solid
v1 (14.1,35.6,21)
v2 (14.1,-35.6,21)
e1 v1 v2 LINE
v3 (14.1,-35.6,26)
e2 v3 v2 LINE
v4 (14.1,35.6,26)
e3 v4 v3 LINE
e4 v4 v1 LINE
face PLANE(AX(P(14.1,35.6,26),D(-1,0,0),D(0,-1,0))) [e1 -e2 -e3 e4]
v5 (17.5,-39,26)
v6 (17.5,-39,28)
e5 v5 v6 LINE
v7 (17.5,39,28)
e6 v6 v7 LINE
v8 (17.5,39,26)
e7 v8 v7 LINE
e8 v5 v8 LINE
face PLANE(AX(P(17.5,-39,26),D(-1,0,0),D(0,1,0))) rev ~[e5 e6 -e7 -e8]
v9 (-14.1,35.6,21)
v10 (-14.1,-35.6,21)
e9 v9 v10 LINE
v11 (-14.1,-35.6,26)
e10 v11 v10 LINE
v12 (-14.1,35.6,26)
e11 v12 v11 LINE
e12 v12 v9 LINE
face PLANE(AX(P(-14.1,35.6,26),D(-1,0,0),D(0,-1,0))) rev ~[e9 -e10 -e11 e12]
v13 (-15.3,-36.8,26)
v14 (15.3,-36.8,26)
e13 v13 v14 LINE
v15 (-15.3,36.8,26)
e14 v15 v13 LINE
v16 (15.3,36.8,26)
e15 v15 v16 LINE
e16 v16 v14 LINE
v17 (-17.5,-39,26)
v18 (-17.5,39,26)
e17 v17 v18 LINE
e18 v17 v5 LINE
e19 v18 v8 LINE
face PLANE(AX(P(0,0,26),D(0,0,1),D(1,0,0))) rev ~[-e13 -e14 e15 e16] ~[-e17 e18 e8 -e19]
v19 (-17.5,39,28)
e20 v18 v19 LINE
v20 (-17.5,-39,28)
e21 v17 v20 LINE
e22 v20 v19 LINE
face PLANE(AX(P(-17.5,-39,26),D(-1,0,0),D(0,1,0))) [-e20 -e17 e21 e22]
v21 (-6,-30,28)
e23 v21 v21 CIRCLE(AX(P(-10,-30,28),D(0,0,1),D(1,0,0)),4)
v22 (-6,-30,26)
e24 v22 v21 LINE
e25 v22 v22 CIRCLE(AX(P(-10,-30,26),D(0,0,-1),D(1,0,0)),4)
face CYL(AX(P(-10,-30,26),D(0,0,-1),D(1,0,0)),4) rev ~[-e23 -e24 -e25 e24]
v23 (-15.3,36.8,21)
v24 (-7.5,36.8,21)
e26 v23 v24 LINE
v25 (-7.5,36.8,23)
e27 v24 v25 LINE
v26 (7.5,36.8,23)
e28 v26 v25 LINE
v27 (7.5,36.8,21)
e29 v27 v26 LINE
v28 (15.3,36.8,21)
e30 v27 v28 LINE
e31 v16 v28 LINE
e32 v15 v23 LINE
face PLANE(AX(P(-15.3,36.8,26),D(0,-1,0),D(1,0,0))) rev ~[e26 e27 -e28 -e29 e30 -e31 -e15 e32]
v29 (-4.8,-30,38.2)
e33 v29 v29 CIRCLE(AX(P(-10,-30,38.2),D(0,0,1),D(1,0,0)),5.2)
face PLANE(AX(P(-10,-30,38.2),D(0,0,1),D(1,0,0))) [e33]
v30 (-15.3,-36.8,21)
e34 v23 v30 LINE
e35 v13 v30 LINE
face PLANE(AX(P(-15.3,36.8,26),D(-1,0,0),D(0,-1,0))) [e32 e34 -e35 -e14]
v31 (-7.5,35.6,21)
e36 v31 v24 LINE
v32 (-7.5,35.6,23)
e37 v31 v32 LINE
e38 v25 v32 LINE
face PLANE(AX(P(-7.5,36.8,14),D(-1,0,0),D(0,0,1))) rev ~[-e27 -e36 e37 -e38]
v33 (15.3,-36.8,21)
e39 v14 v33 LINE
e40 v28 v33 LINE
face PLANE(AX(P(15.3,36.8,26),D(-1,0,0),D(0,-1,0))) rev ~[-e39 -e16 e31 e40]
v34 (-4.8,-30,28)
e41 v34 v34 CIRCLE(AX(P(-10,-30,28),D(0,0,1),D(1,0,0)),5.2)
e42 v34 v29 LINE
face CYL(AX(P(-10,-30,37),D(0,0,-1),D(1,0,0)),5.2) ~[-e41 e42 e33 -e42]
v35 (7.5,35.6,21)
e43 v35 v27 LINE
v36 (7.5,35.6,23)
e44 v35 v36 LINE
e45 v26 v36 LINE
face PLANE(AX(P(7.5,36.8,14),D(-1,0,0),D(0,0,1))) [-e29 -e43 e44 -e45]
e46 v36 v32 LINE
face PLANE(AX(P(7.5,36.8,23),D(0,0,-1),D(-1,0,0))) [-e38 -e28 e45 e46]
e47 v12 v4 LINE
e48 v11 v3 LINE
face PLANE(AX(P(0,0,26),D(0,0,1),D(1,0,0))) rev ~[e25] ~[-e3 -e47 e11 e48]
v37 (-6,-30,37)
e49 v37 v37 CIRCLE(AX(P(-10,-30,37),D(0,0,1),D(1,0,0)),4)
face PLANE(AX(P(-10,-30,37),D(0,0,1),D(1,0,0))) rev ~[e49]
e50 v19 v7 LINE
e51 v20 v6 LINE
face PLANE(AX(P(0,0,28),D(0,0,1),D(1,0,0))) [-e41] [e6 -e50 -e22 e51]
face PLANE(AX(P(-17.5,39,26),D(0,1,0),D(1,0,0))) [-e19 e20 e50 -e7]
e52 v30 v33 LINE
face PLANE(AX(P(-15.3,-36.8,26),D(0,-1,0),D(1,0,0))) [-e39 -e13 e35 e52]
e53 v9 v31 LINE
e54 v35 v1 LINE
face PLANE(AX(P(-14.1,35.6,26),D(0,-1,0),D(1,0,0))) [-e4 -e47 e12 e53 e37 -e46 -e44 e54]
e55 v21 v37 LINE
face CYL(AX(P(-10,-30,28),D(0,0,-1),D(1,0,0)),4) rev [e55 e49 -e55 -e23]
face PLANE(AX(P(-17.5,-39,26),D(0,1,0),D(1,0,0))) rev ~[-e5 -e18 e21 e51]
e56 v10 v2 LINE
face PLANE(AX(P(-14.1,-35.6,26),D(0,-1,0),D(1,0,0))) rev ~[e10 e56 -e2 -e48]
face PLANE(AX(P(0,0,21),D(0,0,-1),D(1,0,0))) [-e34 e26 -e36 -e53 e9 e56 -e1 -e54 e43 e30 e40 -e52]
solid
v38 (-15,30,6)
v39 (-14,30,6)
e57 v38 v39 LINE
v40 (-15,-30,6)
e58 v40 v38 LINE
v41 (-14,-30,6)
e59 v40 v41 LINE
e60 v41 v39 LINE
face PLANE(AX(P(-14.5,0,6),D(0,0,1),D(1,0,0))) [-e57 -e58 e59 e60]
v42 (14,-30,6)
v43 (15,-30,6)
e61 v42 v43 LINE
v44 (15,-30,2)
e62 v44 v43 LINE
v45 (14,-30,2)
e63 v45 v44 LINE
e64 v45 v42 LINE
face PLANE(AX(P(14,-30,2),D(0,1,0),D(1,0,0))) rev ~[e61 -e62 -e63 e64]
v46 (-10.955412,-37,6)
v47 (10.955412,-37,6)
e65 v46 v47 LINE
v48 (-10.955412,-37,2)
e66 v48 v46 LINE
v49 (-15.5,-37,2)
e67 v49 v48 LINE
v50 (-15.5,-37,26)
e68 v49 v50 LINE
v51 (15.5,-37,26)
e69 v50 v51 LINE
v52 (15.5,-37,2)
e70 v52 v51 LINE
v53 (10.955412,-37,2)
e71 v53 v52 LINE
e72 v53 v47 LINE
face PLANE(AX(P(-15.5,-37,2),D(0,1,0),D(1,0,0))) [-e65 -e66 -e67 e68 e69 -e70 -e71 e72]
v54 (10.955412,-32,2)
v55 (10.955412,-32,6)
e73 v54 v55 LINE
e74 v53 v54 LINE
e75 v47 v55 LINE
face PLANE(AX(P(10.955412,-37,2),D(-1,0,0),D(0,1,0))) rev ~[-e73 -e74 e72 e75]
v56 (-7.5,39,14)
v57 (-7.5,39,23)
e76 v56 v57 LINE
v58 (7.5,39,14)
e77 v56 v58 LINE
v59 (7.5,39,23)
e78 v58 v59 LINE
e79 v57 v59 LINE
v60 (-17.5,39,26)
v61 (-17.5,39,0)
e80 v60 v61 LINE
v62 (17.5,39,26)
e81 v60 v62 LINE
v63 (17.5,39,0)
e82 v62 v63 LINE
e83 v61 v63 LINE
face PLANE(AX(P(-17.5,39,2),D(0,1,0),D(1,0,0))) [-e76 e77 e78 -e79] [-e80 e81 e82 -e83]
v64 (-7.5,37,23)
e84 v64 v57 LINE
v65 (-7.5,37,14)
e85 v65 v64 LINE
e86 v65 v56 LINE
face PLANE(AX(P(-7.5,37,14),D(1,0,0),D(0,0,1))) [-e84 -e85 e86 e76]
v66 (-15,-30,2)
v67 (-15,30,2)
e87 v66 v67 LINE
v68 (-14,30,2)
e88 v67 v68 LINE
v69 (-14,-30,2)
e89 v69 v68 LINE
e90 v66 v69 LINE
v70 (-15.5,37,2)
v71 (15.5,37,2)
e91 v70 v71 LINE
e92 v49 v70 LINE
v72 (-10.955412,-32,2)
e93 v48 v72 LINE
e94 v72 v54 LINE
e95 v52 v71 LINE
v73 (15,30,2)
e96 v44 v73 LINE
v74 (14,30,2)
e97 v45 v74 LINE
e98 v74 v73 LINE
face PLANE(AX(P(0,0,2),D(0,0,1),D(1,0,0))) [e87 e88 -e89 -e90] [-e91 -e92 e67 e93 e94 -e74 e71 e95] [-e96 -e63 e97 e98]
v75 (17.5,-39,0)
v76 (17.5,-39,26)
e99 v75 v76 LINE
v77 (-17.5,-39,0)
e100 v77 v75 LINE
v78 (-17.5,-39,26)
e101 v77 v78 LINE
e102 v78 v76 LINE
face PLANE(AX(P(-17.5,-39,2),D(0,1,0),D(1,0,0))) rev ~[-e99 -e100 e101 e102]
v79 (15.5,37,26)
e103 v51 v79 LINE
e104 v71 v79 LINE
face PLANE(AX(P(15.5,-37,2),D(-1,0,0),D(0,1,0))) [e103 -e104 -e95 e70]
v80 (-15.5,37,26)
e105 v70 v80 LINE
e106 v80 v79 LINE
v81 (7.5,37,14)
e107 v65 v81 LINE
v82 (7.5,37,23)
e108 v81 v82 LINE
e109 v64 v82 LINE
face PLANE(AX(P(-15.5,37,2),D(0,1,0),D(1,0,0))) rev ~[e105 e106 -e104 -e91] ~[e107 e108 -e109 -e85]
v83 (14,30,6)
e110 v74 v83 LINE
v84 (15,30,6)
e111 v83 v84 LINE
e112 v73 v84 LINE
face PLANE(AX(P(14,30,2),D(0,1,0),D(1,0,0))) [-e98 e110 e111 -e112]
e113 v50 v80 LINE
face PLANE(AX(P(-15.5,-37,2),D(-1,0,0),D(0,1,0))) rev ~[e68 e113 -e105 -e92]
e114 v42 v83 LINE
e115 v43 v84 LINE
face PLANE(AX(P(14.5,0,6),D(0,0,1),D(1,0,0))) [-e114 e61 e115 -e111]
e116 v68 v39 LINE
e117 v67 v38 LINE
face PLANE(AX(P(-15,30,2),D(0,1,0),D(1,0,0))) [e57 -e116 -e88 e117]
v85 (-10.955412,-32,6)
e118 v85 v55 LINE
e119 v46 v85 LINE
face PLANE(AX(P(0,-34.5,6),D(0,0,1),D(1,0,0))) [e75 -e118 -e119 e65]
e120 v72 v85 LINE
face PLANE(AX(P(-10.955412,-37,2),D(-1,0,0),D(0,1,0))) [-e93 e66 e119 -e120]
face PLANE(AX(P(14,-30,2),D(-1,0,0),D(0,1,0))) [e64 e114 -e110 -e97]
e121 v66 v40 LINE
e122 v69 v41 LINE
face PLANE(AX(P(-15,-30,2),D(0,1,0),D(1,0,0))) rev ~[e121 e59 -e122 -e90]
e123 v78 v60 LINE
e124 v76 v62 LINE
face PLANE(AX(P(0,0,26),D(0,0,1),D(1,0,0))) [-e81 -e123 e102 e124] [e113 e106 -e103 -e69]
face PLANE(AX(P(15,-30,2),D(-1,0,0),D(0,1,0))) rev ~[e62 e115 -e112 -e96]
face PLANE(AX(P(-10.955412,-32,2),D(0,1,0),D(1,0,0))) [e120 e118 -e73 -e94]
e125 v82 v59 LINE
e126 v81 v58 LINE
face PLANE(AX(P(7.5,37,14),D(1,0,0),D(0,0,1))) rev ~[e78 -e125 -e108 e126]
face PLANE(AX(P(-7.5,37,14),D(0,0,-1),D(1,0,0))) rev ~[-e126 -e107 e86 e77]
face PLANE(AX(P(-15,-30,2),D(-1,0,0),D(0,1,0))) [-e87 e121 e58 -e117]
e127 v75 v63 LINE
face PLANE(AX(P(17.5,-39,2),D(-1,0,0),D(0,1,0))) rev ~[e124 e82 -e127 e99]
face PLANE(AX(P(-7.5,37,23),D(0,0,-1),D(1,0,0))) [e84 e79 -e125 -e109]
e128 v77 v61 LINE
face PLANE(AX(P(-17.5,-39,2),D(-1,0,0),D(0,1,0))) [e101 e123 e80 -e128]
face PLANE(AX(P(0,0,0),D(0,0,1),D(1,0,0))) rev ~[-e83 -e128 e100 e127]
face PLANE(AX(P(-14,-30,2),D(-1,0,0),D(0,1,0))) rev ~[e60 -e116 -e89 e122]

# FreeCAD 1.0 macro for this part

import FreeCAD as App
import Part
import Sketcher
from FreeCAD import Vector
Q = App.Units.Quantity

doc = App.newDocument("Part")
body = doc.addObject("PartDesign::Body", "Body")

# Sketch on XY plane
sketch1 = body.newObject("Sketcher::SketchObject", "Sketch")
sketch1.AttachmentSupport = (doc.getObject("XY_Plane"), [""])
sketch1.MapMode = "FlatFace"
sketch1.addGeometry([
    Part.LineSegment(Vector(-18, 39, 0), Vector(-18, -39, 0)),
    Part.LineSegment(Vector(-18, -39, 0), Vector(18, -39, 0)),
    Part.LineSegment(Vector(18, -39, 0), Vector(18, 39, 0)),
    Part.LineSegment(Vector(18, 39, 0), Vector(-18, 39, 0)),
], False)
sketch1.addConstraint([
    Sketcher.Constraint("Coincident", 0, 2, 1, 1),
    Sketcher.Constraint("Coincident", 1, 2, 2, 1),
    Sketcher.Constraint("Coincident", 2, 2, 3, 1),
    Sketcher.Constraint("Coincident", 3, 2, 0, 1),
    Sketcher.Constraint("Vertical", 0),
    Sketcher.Constraint("Horizontal", 1),
    Sketcher.Constraint("Vertical", 2),
    Sketcher.Constraint("Horizontal", 3),
    Sketcher.Constraint("Symmetric", 0, 2, 2, 2, -1, 1),
    Sketcher.Constraint("DistanceX", 1, 1, 1, 2, Q("35 mm")),
    Sketcher.Constraint("DistanceY", 0, 2, 0, 1, Q("78 mm")),
])
pad1 = body.newObject("PartDesign::Pad", "Pad")
pad1.Profile = sketch1
pad1.Length = 2

# Sketch on XY plane
sketch2 = body.newObject("Sketcher::SketchObject", "Sketch001")
sketch2.AttachmentSupport = (doc.getObject("XY_Plane"), [""])
sketch2.MapMode = "FlatFace"
sketch2.AttachmentOffset = App.Placement(Vector(0, 0, 2), App.Rotation())
sketch2.addGeometry([
    Part.LineSegment(Vector(-18, 39, 0), Vector(-18, -39, 0)),  # 0
    Part.LineSegment(Vector(-18, -39, 0), Vector(18, -39, 0)),  # 1
    Part.LineSegment(Vector(18, -39, 0), Vector(18, 39, 0)),  # 2
    Part.LineSegment(Vector(18, 39, 0), Vector(-18, 39, 0)),  # 3
    Part.LineSegment(Vector(16, -37, 0), Vector(-16, -37, 0)),  # 4
    Part.LineSegment(Vector(-16, -37, 0), Vector(-16, 37, 0)),  # 5
    Part.LineSegment(Vector(-16, 37, 0), Vector(16, 37, 0)),  # 6
    Part.LineSegment(Vector(16, 37, 0), Vector(16, -37, 0)),  # 7
], False)
sketch2.addConstraint([
    Sketcher.Constraint("Coincident", 0, 2, 1, 1),
    Sketcher.Constraint("Coincident", 1, 2, 2, 1),
    Sketcher.Constraint("Coincident", 2, 2, 3, 1),
    Sketcher.Constraint("Coincident", 3, 2, 0, 1),
    Sketcher.Constraint("Coincident", 4, 2, 5, 1),
    Sketcher.Constraint("Coincident", 5, 2, 6, 1),
    Sketcher.Constraint("Coincident", 6, 2, 7, 1),
    Sketcher.Constraint("Coincident", 7, 2, 4, 1),
    Sketcher.Constraint("Vertical", 0),
    Sketcher.Constraint("Horizontal", 1),
    Sketcher.Constraint("Vertical", 2),
    Sketcher.Constraint("Horizontal", 3),
    Sketcher.Constraint("Horizontal", 4),
    Sketcher.Constraint("Vertical", 5),
    Sketcher.Constraint("Horizontal", 6),
    Sketcher.Constraint("Vertical", 7),
    Sketcher.Constraint("Symmetric", 0, 2, 2, 2, -1, 1),
    Sketcher.Constraint("Symmetric", 4, 2, 6, 2, -1, 1),
    Sketcher.Constraint("DistanceX", 1, 1, 1, 2, Q("35 mm")),
    Sketcher.Constraint("DistanceX", 4, 2, 4, 1, Q("31 mm")),
    Sketcher.Constraint("DistanceY", 0, 2, 0, 1, Q("78 mm")),
    Sketcher.Constraint("DistanceY", 5, 1, 5, 2, Q("74 mm")),
])
pad2 = body.newObject("PartDesign::Pad", "Pad001")
pad2.Profile = sketch2
pad2.Length = 24

# Sketch on XY plane
sketch3 = body.newObject("Sketcher::SketchObject", "Sketch002")
sketch3.AttachmentSupport = (doc.getObject("XY_Plane"), [""])
sketch3.MapMode = "FlatFace"
sketch3.AttachmentOffset = App.Placement(Vector(0, 0, 2), App.Rotation())
sketch3.addGeometry([
    Part.LineSegment(Vector(-15, 30, 0), Vector(-15, -30, 0)),  # 0
    Part.LineSegment(Vector(-15, -30, 0), Vector(-14, -30, 0)),  # 1
    Part.LineSegment(Vector(-14, -30, 0), Vector(-14, 30, 0)),  # 2
    Part.LineSegment(Vector(-14, 30, 0), Vector(-15, 30, 0)),  # 3
    Part.LineSegment(Vector(14, 30, 0), Vector(14, -30, 0)),  # 4
    Part.LineSegment(Vector(14, -30, 0), Vector(15, -30, 0)),  # 5
    Part.LineSegment(Vector(15, -30, 0), Vector(15, 30, 0)),  # 6
    Part.LineSegment(Vector(15, 30, 0), Vector(14, 30, 0)),  # 7
    Part.LineSegment(Vector(-11, -32, 0), Vector(-11, -37, 0)),  # 8
    Part.LineSegment(Vector(-11, -37, 0), Vector(11, -37, 0)),  # 9
    Part.LineSegment(Vector(11, -37, 0), Vector(11, -32, 0)),  # 10
    Part.LineSegment(Vector(11, -32, 0), Vector(-11, -32, 0)),  # 11
], False)
sketch3.addConstraint([
    Sketcher.Constraint("Coincident", 0, 2, 1, 1),
    Sketcher.Constraint("Coincident", 1, 2, 2, 1),
    Sketcher.Constraint("Coincident", 2, 2, 3, 1),
    Sketcher.Constraint("Coincident", 3, 2, 0, 1),
    Sketcher.Constraint("Coincident", 4, 2, 5, 1),
    Sketcher.Constraint("Coincident", 5, 2, 6, 1),
    Sketcher.Constraint("Coincident", 6, 2, 7, 1),
    Sketcher.Constraint("Coincident", 7, 2, 4, 1),
    Sketcher.Constraint("Coincident", 8, 2, 9, 1),
    Sketcher.Constraint("Coincident", 9, 2, 10, 1),
    Sketcher.Constraint("Coincident", 10, 2, 11, 1),
    Sketcher.Constraint("Coincident", 11, 2, 8, 1),
    Sketcher.Constraint("Vertical", 0),
    Sketcher.Constraint("Horizontal", 1),
    Sketcher.Constraint("Vertical", 2),
    Sketcher.Constraint("Horizontal", 3),
    Sketcher.Constraint("Vertical", 4),
    Sketcher.Constraint("Horizontal", 5),
    Sketcher.Constraint("Vertical", 6),
    Sketcher.Constraint("Horizontal", 7),
    Sketcher.Constraint("Vertical", 8),
    Sketcher.Constraint("Horizontal", 9),
    Sketcher.Constraint("Vertical", 10),
    Sketcher.Constraint("Horizontal", 11),
    Sketcher.Constraint("Symmetric", 2, 2, 4, 2, -1, 1),
    Sketcher.Constraint("Symmetric", 0, 2, 6, 2, -1, 1),
    Sketcher.Constraint("Horizontal", 1, 2, 4, 2),
    Sketcher.Constraint("DistanceX", 1, 1, 1, 2, Q("1 mm")),
    Sketcher.Constraint("DistanceY", 0, 2, 0, 1, Q("60 mm")),
    Sketcher.Constraint("DistanceY", 8, 2, 8, 1, Q("5 mm")),
    Sketcher.Constraint("DistanceX", 0, 2, -1, 1, Q("15 mm")),
    Sketcher.Constraint("DistanceY", 8, 2, -1, 1, Q("37 mm")),
    Sketcher.Constraint("DistanceX", 9, 1, 9, 2, Q("21.910824 mm")),
    Sketcher.Constraint("DistanceX", 8, 2, -1, 1, Q("10.955412 mm")),
])
pad3 = body.newObject("PartDesign::Pad", "Pad002")
pad3.Profile = sketch3
pad3.Length = 4

# Sketch on XZ plane
sketch4 = body.newObject("Sketcher::SketchObject", "Sketch003")
sketch4.AttachmentSupport = (doc.getObject("XZ_Plane"), [""])
sketch4.MapMode = "FlatFace"
sketch4.AttachmentOffset = App.Placement(Vector(0, 0, -37), App.Rotation())
sketch4.addGeometry([
    Part.LineSegment(Vector(-8, 23, 0), Vector(-8, 14, 0)),
    Part.LineSegment(Vector(-8, 14, 0), Vector(8, 14, 0)),
    Part.LineSegment(Vector(8, 14, 0), Vector(8, 23, 0)),
    Part.LineSegment(Vector(8, 23, 0), Vector(-8, 23, 0)),
], False)
sketch4.addConstraint([
    Sketcher.Constraint("Coincident", 0, 2, 1, 1),
    Sketcher.Constraint("Coincident", 1, 2, 2, 1),
    Sketcher.Constraint("Coincident", 2, 2, 3, 1),
    Sketcher.Constraint("Coincident", 3, 2, 0, 1),
    Sketcher.Constraint("Vertical", 0),
    Sketcher.Constraint("Horizontal", 1),
    Sketcher.Constraint("Vertical", 2),
    Sketcher.Constraint("Horizontal", 3),
    Sketcher.Constraint("DistanceX", 1, 1, 1, 2, Q("15 mm")),
    Sketcher.Constraint("DistanceY", 0, 2, 0, 1, Q("9 mm")),
    Sketcher.Constraint("DistanceY", -1, 1, 0, 2, Q("14 mm")),
    Sketcher.Constraint("DistanceX", 0, 2, -1, 1, Q("7.5 mm")),
])
pocket1 = body.newObject("PartDesign::Pocket", "Pocket")
pocket1.Profile = sketch4
pocket1.Type = "ThroughAll"
body2 = doc.addObject("PartDesign::Body", "Body001")

# Sketch on XY plane
sketch5 = body2.newObject("Sketcher::SketchObject", "Sketch004")
sketch5.AttachmentSupport = (doc.getObject("XY_Plane001"), [""])
sketch5.MapMode = "FlatFace"
sketch5.AttachmentOffset = App.Placement(Vector(0, 0, 26), App.Rotation())
sketch5.addGeometry([
    Part.LineSegment(Vector(-18, 39, 0), Vector(-18, -39, 0)),
    Part.LineSegment(Vector(-18, -39, 0), Vector(18, -39, 0)),
    Part.LineSegment(Vector(18, -39, 0), Vector(18, 39, 0)),
    Part.LineSegment(Vector(18, 39, 0), Vector(-18, 39, 0)),
], False)
sketch5.addConstraint([
    Sketcher.Constraint("Coincident", 0, 2, 1, 1),
    Sketcher.Constraint("Coincident", 1, 2, 2, 1),
    Sketcher.Constraint("Coincident", 2, 2, 3, 1),
    Sketcher.Constraint("Coincident", 3, 2, 0, 1),
    Sketcher.Constraint("Vertical", 0),
    Sketcher.Constraint("Horizontal", 1),
    Sketcher.Constraint("Vertical", 2),
    Sketcher.Constraint("Horizontal", 3),
    Sketcher.Constraint("Symmetric", 0, 2, 2, 2, -1, 1),
    Sketcher.Constraint("DistanceX", 1, 1, 1, 2, Q("35 mm")),
    Sketcher.Constraint("DistanceY", 0, 2, 0, 1, Q("78 mm")),
])
pad4 = body2.newObject("PartDesign::Pad", "Pad003")
pad4.Profile = sketch5
pad4.Length = 2

# Sketch on XY plane
sketch6 = body2.newObject("Sketcher::SketchObject", "Sketch005")
sketch6.AttachmentSupport = (doc.getObject("XY_Plane001"), [""])
sketch6.MapMode = "FlatFace"
sketch6.AttachmentOffset = App.Placement(Vector(0, 0, 26), App.Rotation())
sketch6.addGeometry([
    Part.LineSegment(Vector(-15, -37, 0), Vector(-15, 37, 0)),  # 0
    Part.LineSegment(Vector(-15, 37, 0), Vector(15, 37, 0)),  # 1
    Part.LineSegment(Vector(15, 37, 0), Vector(15, -37, 0)),  # 2
    Part.LineSegment(Vector(15, -37, 0), Vector(-15, -37, 0)),  # 3
    Part.LineSegment(Vector(14, 36, 0), Vector(-14, 36, 0)),  # 4
    Part.LineSegment(Vector(-14, 36, 0), Vector(-14, -36, 0)),  # 5
    Part.LineSegment(Vector(-14, -36, 0), Vector(14, -36, 0)),  # 6
    Part.LineSegment(Vector(14, -36, 0), Vector(14, 36, 0)),  # 7
], False)
sketch6.addConstraint([
    Sketcher.Constraint("Coincident", 0, 2, 1, 1),
    Sketcher.Constraint("Coincident", 1, 2, 2, 1),
    Sketcher.Constraint("Coincident", 2, 2, 3, 1),
    Sketcher.Constraint("Coincident", 3, 2, 0, 1),
    Sketcher.Constraint("Coincident", 4, 2, 5, 1),
    Sketcher.Constraint("Coincident", 5, 2, 6, 1),
    Sketcher.Constraint("Coincident", 6, 2, 7, 1),
    Sketcher.Constraint("Coincident", 7, 2, 4, 1),
    Sketcher.Constraint("Vertical", 0),
    Sketcher.Constraint("Horizontal", 1),
    Sketcher.Constraint("Vertical", 2),
    Sketcher.Constraint("Horizontal", 3),
    Sketcher.Constraint("Horizontal", 4),
    Sketcher.Constraint("Vertical", 5),
    Sketcher.Constraint("Horizontal", 6),
    Sketcher.Constraint("Vertical", 7),
    Sketcher.Constraint("Symmetric", 0, 2, 2, 2, -1, 1),
    Sketcher.Constraint("Symmetric", 4, 2, 6, 2, -1, 1),
    Sketcher.Constraint("DistanceX", 1, 1, 1, 2, Q("30.6 mm")),
    Sketcher.Constraint("DistanceX", 4, 2, 4, 1, Q("28.2 mm")),
    Sketcher.Constraint("DistanceY", 0, 1, 0, 2, Q("73.6 mm")),
    Sketcher.Constraint("DistanceY", 5, 2, 5, 1, Q("71.2 mm")),
])
pad5 = body2.newObject("PartDesign::Pad", "Pad004")
pad5.Profile = sketch6
pad5.Length = 5
pad5.Reversed = True

# Sketch on XY plane
sketch7 = body2.newObject("Sketcher::SketchObject", "Sketch006")
sketch7.AttachmentSupport = (doc.getObject("XY_Plane001"), [""])
sketch7.MapMode = "FlatFace"
sketch7.AttachmentOffset = App.Placement(Vector(0, 0, 28), App.Rotation())
sketch7.addGeometry([
    Part.Circle(Vector(-10, -30, 0), Vector(0, 0, 1), 5.2),
    Part.Circle(Vector(-10, -30, 0), Vector(0, 0, 1), 4),
], False)
sketch7.addConstraint([
    Sketcher.Constraint("Coincident", 1, 3, 0, 3),
    Sketcher.Constraint("Diameter", 1, Q("8 mm")),
    Sketcher.Constraint("Diameter", 0, Q("10.4 mm")),
    Sketcher.Constraint("DistanceX", 0, 3, -1, 1, Q("10 mm")),
    Sketcher.Constraint("DistanceY", 0, 3, -1, 1, Q("30 mm")),
])
pad6 = body2.newObject("PartDesign::Pad", "Pad005")
pad6.Profile = sketch7
pad6.Length = 9

# Sketch on XY plane
sketch8 = body2.newObject("Sketcher::SketchObject", "Sketch007")
sketch8.AttachmentSupport = (doc.getObject("XY_Plane001"), [""])
sketch8.MapMode = "FlatFace"
sketch8.AttachmentOffset = App.Placement(Vector(0, 0, 37), App.Rotation())
sketch8.addGeometry(Part.Circle(Vector(-10, -30, 0), Vector(0, 0, 1), 5), False)
sketch8.addConstraint([
    Sketcher.Constraint("Diameter", 0, Q("10.4 mm")),
    Sketcher.Constraint("DistanceX", 0, 3, -1, 1, Q("10 mm")),
    Sketcher.Constraint("DistanceY", 0, 3, -1, 1, Q("30 mm")),
])
pad7 = body2.newObject("PartDesign::Pad", "Pad006")
pad7.Profile = sketch8
pad7.Length = 1.2

# Sketch on XY plane
sketch9 = body2.newObject("Sketcher::SketchObject", "Sketch008")
sketch9.AttachmentSupport = (doc.getObject("XY_Plane001"), [""])
sketch9.MapMode = "FlatFace"
sketch9.AttachmentOffset = App.Placement(Vector(0, 0, 26), App.Rotation())
sketch9.addGeometry(Part.Circle(Vector(-10, -30, 0), Vector(0, 0, 1), 4), False)
sketch9.addConstraint([
    Sketcher.Constraint("Diameter", 0, Q("8 mm")),
    Sketcher.Constraint("DistanceX", 0, 3, -1, 1, Q("10 mm")),
    Sketcher.Constraint("DistanceY", 0, 3, -1, 1, Q("30 mm")),
])
pocket2 = body2.newObject("PartDesign::Pocket", "Pocket001")
pocket2.Profile = sketch9
pocket2.Length = 2
pocket2.Reversed = True

# Sketch on XZ plane
sketch10 = body2.newObject("Sketcher::SketchObject", "Sketch009")
sketch10.AttachmentSupport = (doc.getObject("XZ_Plane001"), [""])
sketch10.MapMode = "FlatFace"
sketch10.AttachmentOffset = App.Placement(Vector(0, 0, -36.8), App.Rotation())
sketch10.addGeometry([
    Part.LineSegment(Vector(8, 23, 0), Vector(8, 14, 0)),
    Part.LineSegment(Vector(8, 14, 0), Vector(-8, 14, 0)),
    Part.LineSegment(Vector(-8, 14, 0), Vector(-8, 23, 0)),
    Part.LineSegment(Vector(-8, 23, 0), Vector(8, 23, 0)),
], False)
sketch10.addConstraint([
    Sketcher.Constraint("Coincident", 0, 2, 1, 1),
    Sketcher.Constraint("Coincident", 1, 2, 2, 1),
    Sketcher.Constraint("Coincident", 2, 2, 3, 1),
    Sketcher.Constraint("Coincident", 3, 2, 0, 1),
    Sketcher.Constraint("Vertical", 0),
    Sketcher.Constraint("Horizontal", 1),
    Sketcher.Constraint("Vertical", 2),
    Sketcher.Constraint("Horizontal", 3),
    Sketcher.Constraint("DistanceX", 1, 2, 1, 1, Q("15 mm")),
    Sketcher.Constraint("DistanceY", 0, 2, 0, 1, Q("9 mm")),
    Sketcher.Constraint("DistanceY", -1, 1, 0, 2, Q("14 mm")),
    Sketcher.Constraint("DistanceX", -1, 1, 0, 2, Q("7.5 mm")),
])
pocket3 = body2.newObject("PartDesign::Pocket", "Pocket002")
pocket3.Profile = sketch10
pocket3.Length = 1.2
pocket3.Reversed = True

doc.recompute()
